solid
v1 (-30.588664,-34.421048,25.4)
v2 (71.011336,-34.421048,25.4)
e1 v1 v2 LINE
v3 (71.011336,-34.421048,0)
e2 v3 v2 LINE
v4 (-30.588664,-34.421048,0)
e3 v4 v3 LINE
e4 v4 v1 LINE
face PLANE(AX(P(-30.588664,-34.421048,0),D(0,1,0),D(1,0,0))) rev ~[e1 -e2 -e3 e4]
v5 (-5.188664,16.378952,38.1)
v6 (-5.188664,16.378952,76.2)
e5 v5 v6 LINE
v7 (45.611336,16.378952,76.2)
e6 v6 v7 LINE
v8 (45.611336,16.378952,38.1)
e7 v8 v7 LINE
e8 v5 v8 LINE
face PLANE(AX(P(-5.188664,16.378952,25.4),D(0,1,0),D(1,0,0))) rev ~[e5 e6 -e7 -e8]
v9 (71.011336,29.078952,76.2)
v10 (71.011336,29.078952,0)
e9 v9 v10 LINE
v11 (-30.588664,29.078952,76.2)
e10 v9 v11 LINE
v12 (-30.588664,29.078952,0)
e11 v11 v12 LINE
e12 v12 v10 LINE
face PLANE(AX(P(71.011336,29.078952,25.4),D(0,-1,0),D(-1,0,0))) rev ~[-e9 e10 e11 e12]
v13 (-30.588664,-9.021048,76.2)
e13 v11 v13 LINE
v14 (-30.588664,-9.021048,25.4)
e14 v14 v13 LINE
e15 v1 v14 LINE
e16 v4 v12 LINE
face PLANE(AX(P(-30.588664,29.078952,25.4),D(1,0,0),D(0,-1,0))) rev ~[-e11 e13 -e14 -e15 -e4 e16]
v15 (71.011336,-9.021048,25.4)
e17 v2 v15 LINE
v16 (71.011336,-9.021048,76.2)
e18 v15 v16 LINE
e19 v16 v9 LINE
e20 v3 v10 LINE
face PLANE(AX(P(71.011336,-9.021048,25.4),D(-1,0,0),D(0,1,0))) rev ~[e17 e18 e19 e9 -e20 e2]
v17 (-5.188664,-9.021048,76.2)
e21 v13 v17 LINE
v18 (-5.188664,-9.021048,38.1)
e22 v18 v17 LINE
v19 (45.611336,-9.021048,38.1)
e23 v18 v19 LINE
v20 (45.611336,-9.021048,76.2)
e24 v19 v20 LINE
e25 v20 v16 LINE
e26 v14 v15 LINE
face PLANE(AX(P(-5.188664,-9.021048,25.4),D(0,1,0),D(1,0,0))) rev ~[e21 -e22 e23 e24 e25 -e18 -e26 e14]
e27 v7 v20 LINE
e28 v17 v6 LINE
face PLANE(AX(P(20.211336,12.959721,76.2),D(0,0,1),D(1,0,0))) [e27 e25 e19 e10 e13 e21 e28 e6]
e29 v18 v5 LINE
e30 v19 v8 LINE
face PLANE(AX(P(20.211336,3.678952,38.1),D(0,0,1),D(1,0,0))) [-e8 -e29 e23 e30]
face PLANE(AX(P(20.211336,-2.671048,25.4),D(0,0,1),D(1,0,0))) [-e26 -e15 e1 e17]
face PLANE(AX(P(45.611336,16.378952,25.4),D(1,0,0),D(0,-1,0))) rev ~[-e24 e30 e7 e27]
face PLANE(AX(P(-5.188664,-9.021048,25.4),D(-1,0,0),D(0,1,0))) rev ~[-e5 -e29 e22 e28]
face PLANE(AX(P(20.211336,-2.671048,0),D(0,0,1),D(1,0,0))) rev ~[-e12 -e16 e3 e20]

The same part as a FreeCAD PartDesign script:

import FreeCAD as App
import Part
import Sketcher

V = App.Vector
Q = App.Units.Quantity

doc = App.newDocument("Part")
body = doc.addObject("PartDesign::Body", "Body")

# Sketch on XY plane
sketch1 = body.newObject("Sketcher::SketchObject", "Sketch")
sketch1.AttachmentSupport = (doc.getObject("XY_Plane"), [""])
sketch1.MapMode = "FlatFace"
sketch1.addGeometry([
    Part.LineSegment(V(-31, 29, 0), V(-31, -34, 0)),
    Part.LineSegment(V(-31, -34, 0), V(71, -34, 0)),
    Part.LineSegment(V(71, -34, 0), V(71, 29, 0)),
    Part.LineSegment(V(71, 29, 0), V(-31, 29, 0)),
], False)
sketch1.addConstraint([
    Sketcher.Constraint("Coincident", 0, 2, 1, 1),
    Sketcher.Constraint("Coincident", 1, 2, 2, 1),
    Sketcher.Constraint("Coincident", 2, 2, 3, 1),
    Sketcher.Constraint("Coincident", 3, 2, 0, 1),
    Sketcher.Constraint("Vertical", 0),
    Sketcher.Constraint("Horizontal", 1),
    Sketcher.Constraint("Vertical", 2),
    Sketcher.Constraint("Horizontal", 3),
    Sketcher.Constraint("DistanceX", 1, 1, 1, 2, Q("4 in")),
    Sketcher.Constraint("DistanceY", 0, 2, 0, 1, Q("2.5 in")),
    Sketcher.Constraint("DistanceX", 0, 2, -1, 1, Q("30.588664 mm")),
    Sketcher.Constraint("DistanceY", 0, 2, -1, 1, Q("34.421048 mm")),
])
pad1 = body.newObject("PartDesign::Pad", "Pad")
pad1.Profile = sketch1
pad1.Length = Q("1 in")

# Sketch on XY plane
sketch2 = body.newObject("Sketcher::SketchObject", "Sketch001")
sketch2.AttachmentSupport = (doc.getObject("XY_Plane"), [""])
sketch2.MapMode = "FlatFace"
sketch2.AttachmentOffset = App.Placement(V(0, 0, 1 * 25.4), App.Rotation())
sketch2.addGeometry([
    Part.LineSegment(V(-31, 29, 0), V(-31, -9, 0)),  # 0
    Part.LineSegment(V(-31, -9, 0), V(-5, -9, 0)),  # 1
    Part.LineSegment(V(-5, -9, 0), V(-5, 16, 0)),  # 2
    Part.LineSegment(V(-5, 16, 0), V(46, 16, 0)),  # 3
    Part.LineSegment(V(46, 16, 0), V(46, -9, 0)),  # 4
    Part.LineSegment(V(46, -9, 0), V(71, -9, 0)),  # 5
    Part.LineSegment(V(71, -9, 0), V(71, 29, 0)),  # 6
    Part.LineSegment(V(71, 29, 0), V(-31, 29, 0)),  # 7
], False)
sketch2.addConstraint([
    Sketcher.Constraint("Coincident", 0, 2, 1, 1),
    Sketcher.Constraint("Coincident", 1, 2, 2, 1),
    Sketcher.Constraint("Coincident", 2, 2, 3, 1),
    Sketcher.Constraint("Coincident", 3, 2, 4, 1),
    Sketcher.Constraint("Coincident", 4, 2, 5, 1),
    Sketcher.Constraint("Coincident", 5, 2, 6, 1),
    Sketcher.Constraint("Coincident", 6, 2, 7, 1),
    Sketcher.Constraint("Coincident", 7, 2, 0, 1),
    Sketcher.Constraint("Vertical", 0),
    Sketcher.Constraint("Horizontal", 1),
    Sketcher.Constraint("Vertical", 2),
    Sketcher.Constraint("Horizontal", 3),
    Sketcher.Constraint("Vertical", 4),
    Sketcher.Constraint("Horizontal", 5),
    Sketcher.Constraint("Vertical", 6),
    Sketcher.Constraint("Horizontal", 7),
    Sketcher.Constraint("Horizontal", 1, 2, 4, 2),
    Sketcher.Constraint("Equal", 1, 5),
    Sketcher.Constraint("Equal", 5, 2),
    Sketcher.Constraint("DistanceX", 1, 1, 1, 2, Q("1 in")),
    Sketcher.Constraint("DistanceX", 3, 1, 3, 2, Q("2 in")),
    Sketcher.Constraint("DistanceY", 0, 2, 0, 1, Q("1.5 in")),
    Sketcher.Constraint("DistanceX", 0, 2, -1, 1, Q("30.588664 mm")),
    Sketcher.Constraint("DistanceY", 0, 2, -1, 1, Q("9.021048 mm")),
])
pad2 = body.newObject("PartDesign::Pad", "Pad001")
pad2.Profile = sketch2
pad2.Length = Q("2 in")

# Sketch on XY plane
sketch3 = body.newObject("Sketcher::SketchObject", "Sketch002")
sketch3.AttachmentSupport = (doc.getObject("XY_Plane"), [""])
sketch3.MapMode = "FlatFace"
sketch3.AttachmentOffset = App.Placement(V(0, 0, 1 * 25.4), App.Rotation())
sketch3.addGeometry([
    Part.LineSegment(V(-5, 16, 0), V(-5, -9, 0)),
    Part.LineSegment(V(-5, -9, 0), V(46, -9, 0)),
    Part.LineSegment(V(46, -9, 0), V(46, 16, 0)),
    Part.LineSegment(V(46, 16, 0), V(-5, 16, 0)),
], False)
sketch3.addConstraint([
    Sketcher.Constraint("Coincident", 0, 2, 1, 1),
    Sketcher.Constraint("Coincident", 1, 2, 2, 1),
    Sketcher.Constraint("Coincident", 2, 2, 3, 1),
    Sketcher.Constraint("Coincident", 3, 2, 0, 1),
    Sketcher.Constraint("Vertical", 0),
    Sketcher.Constraint("Horizontal", 1),
    Sketcher.Constraint("Vertical", 2),
    Sketcher.Constraint("Horizontal", 3),
    Sketcher.Constraint("DistanceX", 1, 1, 1, 2, Q("2 in")),
    Sketcher.Constraint("DistanceY", 0, 2, 0, 1, Q("1 in")),
    Sketcher.Constraint("DistanceX", 0, 2, -1, 1, Q("5.188664 mm")),
    Sketcher.Constraint("DistanceY", 0, 2, -1, 1, Q("9.021048 mm")),
])
pad3 = body.newObject("PartDesign::Pad", "Pad002")
pad3.Profile = sketch3
pad3.Length = Q("0.5 in")

doc.recompute()
